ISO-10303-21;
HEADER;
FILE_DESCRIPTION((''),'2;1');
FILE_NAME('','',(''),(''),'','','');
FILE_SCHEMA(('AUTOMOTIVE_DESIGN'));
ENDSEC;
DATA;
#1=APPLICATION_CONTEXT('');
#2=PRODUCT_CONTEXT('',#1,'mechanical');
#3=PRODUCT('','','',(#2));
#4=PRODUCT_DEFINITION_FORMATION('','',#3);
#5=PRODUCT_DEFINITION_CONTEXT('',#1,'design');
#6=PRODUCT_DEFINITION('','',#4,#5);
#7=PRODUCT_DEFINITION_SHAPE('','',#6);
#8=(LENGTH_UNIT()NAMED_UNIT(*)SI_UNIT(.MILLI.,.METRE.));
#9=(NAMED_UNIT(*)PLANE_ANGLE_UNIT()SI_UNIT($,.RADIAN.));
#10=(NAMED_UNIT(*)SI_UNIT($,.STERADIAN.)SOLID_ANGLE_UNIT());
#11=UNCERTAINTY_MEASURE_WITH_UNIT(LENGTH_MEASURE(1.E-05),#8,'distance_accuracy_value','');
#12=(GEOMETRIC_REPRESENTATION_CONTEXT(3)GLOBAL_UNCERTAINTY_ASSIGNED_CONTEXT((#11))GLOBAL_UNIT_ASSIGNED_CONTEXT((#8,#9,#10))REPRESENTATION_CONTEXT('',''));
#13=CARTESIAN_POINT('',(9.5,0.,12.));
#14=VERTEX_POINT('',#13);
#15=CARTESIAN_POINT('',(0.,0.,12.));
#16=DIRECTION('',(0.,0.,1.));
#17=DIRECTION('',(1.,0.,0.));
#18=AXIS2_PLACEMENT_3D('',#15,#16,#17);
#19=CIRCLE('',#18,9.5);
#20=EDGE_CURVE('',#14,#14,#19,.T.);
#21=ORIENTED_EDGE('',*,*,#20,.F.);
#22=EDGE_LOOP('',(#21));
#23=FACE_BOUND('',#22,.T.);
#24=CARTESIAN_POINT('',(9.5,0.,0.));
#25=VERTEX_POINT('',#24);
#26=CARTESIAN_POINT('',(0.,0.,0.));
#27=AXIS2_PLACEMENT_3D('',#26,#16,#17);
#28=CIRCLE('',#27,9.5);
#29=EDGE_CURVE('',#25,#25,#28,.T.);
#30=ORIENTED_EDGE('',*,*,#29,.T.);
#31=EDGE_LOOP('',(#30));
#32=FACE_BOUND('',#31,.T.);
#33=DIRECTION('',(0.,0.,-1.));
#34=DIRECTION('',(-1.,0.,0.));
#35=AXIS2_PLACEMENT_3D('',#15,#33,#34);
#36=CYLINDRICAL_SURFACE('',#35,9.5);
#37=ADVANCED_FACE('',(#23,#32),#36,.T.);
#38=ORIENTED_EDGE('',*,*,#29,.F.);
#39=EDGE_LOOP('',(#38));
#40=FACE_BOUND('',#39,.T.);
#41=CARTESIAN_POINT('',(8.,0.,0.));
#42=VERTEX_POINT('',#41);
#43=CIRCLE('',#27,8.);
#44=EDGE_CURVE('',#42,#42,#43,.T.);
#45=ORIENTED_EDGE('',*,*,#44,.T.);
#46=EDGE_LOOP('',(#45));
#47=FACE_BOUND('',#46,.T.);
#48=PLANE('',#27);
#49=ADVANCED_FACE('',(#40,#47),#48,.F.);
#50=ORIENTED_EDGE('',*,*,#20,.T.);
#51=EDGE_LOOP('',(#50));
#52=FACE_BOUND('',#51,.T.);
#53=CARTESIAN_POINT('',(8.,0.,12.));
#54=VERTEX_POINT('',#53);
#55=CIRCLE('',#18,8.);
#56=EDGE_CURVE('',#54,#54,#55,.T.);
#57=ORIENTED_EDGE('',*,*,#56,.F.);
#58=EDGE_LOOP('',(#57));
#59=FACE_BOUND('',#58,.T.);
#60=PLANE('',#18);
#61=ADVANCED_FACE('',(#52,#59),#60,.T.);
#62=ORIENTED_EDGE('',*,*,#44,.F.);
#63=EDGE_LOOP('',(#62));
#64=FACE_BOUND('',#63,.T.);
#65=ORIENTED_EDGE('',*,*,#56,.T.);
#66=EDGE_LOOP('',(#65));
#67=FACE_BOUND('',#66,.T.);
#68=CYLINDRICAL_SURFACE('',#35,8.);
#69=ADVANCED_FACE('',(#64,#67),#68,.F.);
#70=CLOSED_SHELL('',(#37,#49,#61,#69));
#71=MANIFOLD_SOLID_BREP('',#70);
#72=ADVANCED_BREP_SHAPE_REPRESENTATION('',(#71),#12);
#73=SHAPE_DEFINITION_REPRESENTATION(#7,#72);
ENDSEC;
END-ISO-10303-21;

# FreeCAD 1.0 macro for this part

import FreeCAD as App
import Part
import Sketcher
from FreeCAD import Vector
Q = App.Units.Quantity

doc = App.newDocument("Part")
body = doc.addObject("PartDesign::Body", "Body")

sketch1 = body.newObject("Sketcher::SketchObject", "Sketch")
sketch1.AttachmentSupport = (doc.getObject("XY_Plane"), [""])
sketch1.MapMode = "FlatFace"
sketch1.addGeometry([
    Part.Circle(Vector(0, 0, 0), Vector(0, 0, 1), 10),
    Part.Circle(Vector(0, 0, 0), Vector(0, 0, 1), 8),
], False)
sketch1.addConstraint([
    Sketcher.Constraint("Coincident", 0, 3, -1, 1),
    Sketcher.Constraint("Coincident", 1, 3, -1, 1),
    Sketcher.Constraint("Diameter", 0, Q("19 mm")),
    Sketcher.Constraint("Diameter", 1, Q("16 mm")),
])
pad1 = body.newObject("PartDesign::Pad", "Pad")
pad1.Profile = sketch1
pad1.Length = 12

doc.recompute()
